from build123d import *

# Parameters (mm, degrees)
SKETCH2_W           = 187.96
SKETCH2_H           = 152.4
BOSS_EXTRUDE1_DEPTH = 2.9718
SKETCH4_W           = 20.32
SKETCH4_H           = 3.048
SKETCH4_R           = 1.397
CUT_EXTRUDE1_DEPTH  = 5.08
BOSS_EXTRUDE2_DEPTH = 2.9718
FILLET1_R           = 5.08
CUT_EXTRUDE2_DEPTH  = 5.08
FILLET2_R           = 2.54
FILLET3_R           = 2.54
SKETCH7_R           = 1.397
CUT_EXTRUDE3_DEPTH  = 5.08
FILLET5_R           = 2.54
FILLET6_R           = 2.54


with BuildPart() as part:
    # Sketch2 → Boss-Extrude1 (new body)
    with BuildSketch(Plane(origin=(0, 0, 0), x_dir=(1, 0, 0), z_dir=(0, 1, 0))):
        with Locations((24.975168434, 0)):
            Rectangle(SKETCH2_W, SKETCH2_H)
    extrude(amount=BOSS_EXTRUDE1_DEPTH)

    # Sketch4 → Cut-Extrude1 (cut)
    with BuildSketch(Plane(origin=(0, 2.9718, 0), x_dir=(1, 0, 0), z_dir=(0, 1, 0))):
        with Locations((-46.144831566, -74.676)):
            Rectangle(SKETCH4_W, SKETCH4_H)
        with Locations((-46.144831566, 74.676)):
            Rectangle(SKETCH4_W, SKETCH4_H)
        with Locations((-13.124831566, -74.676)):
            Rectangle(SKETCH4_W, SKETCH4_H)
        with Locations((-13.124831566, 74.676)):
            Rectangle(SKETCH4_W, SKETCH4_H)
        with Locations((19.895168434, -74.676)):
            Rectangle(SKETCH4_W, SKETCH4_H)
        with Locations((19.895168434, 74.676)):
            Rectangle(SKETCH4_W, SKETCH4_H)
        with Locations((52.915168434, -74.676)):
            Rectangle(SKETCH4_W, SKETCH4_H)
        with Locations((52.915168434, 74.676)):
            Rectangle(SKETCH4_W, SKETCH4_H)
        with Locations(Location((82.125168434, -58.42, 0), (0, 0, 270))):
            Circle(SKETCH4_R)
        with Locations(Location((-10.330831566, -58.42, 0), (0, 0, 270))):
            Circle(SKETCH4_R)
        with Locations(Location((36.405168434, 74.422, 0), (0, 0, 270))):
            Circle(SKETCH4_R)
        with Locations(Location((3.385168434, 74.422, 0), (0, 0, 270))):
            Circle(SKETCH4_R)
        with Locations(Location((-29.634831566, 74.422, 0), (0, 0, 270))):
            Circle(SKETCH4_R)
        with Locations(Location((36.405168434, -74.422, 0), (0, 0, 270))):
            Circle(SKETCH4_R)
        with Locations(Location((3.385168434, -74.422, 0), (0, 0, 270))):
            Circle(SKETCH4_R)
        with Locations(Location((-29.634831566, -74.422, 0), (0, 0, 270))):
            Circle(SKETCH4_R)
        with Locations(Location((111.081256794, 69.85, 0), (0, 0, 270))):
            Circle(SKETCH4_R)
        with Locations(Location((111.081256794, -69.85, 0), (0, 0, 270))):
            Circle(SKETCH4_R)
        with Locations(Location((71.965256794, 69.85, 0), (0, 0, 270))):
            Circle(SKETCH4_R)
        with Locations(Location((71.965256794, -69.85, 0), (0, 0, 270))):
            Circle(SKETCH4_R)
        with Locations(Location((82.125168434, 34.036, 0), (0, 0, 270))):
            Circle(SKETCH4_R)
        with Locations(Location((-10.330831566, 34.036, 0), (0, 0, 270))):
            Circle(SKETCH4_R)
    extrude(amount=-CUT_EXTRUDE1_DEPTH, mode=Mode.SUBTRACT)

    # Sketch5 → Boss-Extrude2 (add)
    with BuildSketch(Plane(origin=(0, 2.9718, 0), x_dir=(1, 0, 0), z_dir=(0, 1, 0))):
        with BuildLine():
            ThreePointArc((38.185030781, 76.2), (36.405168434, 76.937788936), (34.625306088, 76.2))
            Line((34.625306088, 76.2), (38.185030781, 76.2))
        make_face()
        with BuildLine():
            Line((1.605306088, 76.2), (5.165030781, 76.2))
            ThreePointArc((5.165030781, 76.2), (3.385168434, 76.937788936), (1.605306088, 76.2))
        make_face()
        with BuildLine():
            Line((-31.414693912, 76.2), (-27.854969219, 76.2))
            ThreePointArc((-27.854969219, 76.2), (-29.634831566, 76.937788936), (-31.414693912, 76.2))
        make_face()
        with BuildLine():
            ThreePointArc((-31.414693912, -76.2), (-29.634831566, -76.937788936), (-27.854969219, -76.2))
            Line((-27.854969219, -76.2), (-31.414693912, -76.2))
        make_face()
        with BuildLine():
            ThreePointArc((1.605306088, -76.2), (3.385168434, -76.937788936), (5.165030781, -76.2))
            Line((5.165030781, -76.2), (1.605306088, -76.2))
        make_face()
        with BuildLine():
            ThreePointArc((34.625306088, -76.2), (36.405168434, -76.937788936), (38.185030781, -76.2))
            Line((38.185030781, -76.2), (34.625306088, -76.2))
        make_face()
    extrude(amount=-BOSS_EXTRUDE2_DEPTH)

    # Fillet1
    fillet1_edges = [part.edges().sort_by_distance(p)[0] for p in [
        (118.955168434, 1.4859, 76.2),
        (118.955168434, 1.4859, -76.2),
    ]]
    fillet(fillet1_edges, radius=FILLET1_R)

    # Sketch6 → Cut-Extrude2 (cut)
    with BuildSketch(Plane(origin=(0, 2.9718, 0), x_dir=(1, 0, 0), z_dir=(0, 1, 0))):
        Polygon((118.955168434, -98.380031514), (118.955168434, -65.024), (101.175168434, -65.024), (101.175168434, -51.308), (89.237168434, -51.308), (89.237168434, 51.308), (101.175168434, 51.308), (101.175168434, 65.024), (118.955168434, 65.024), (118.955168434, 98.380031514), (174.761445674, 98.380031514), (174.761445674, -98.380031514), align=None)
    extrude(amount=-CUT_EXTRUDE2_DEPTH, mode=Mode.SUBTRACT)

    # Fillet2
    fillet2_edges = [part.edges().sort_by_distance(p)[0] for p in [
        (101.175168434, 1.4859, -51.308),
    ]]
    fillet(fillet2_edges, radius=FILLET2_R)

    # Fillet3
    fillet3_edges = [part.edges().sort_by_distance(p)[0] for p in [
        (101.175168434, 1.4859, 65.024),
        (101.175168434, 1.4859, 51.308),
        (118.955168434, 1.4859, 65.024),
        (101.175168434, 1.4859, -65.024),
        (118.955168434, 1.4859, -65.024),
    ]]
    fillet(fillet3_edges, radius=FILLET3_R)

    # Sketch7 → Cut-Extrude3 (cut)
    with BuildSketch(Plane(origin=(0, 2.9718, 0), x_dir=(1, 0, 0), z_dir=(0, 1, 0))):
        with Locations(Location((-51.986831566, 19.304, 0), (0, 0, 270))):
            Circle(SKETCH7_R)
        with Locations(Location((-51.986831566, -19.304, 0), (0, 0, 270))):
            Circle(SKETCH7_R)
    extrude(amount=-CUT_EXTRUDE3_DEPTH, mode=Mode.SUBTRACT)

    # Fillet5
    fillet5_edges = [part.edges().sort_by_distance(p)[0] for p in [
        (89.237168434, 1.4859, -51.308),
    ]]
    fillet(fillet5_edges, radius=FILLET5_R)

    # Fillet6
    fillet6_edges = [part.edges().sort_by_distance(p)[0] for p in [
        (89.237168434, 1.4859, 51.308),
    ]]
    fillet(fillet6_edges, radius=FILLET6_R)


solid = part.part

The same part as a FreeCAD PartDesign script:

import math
import FreeCAD as App
import Part
import Sketcher
from FreeCAD import Vector
Q = App.Units.Quantity


def edges_at(feature, points):
    """Names of the edges that pass closest to the given points."""
    edges = feature.Shape.Edges
    near = lambda p: min(range(len(edges)), key=lambda i: edges[i].distToShape(Part.Vertex(*p))[0])
    return sorted({f"Edge{near(p) + 1}" for p in points})

doc = App.newDocument("Part")
body = doc.addObject("PartDesign::Body", "Body")

# Sketch on XZ plane
sketch1 = body.newObject("Sketcher::SketchObject", "Sketch")
sketch1.AttachmentSupport = (doc.getObject("XZ_Plane"), [""])
sketch1.MapMode = "FlatFace"
sketch1.addGeometry(Part.LineSegment(Vector(-69, -76, 0), Vector(-69, 76, 0)), False)
sketch1.addGeometry(Part.LineSegment(Vector(-69, 76, 0), Vector(119, 76, 0)), False)
sketch1.addGeometry(Part.LineSegment(Vector(119, 76, 0), Vector(119, -76, 0)), False)
sketch1.addGeometry(Part.LineSegment(Vector(119, -76, 0), Vector(-69, -76, 0)), False)
sketch1.addConstraint(Sketcher.Constraint("Coincident", 0, 2, 1, 1))
sketch1.addConstraint(Sketcher.Constraint("Coincident", 1, 2, 2, 1))
sketch1.addConstraint(Sketcher.Constraint("Coincident", 2, 2, 3, 1))
sketch1.addConstraint(Sketcher.Constraint("Coincident", 3, 2, 0, 1))
sketch1.addConstraint(Sketcher.Constraint("Vertical", 0))
sketch1.addConstraint(Sketcher.Constraint("Horizontal", 1))
sketch1.addConstraint(Sketcher.Constraint("Vertical", 2))
sketch1.addConstraint(Sketcher.Constraint("Horizontal", 3))
sketch1.addConstraint(Sketcher.Constraint("DistanceY", 0, 1, 0, 2, Q("6 in")))
sketch1.addConstraint(Sketcher.Constraint("DistanceX", 1, 1, 1, 2, Q("7.4 in")))
sketch1.addConstraint(Sketcher.Constraint("DistanceY", -1, 1, 0, 2, Q("3 in")))
sketch1.addConstraint(Sketcher.Constraint("DistanceX", 0, 2, -1, 1, Q("69.004832 mm")))
pad1 = body.newObject("PartDesign::Pad", "Pad")
pad1.Profile = sketch1
pad1.Length = Q("0.117 in")
pad1.Reversed = True

# Sketch on XZ plane
sketch2 = body.newObject("Sketcher::SketchObject", "Sketch001")
sketch2.AttachmentSupport = (doc.getObject("XZ_Plane"), [""])
sketch2.MapMode = "FlatFace"
sketch2.AttachmentOffset = App.Placement(Vector(0, 0, -0.117 * 25.4), App.Rotation())
sketch2.addGeometry(Part.LineSegment(Vector(-56.3, 73.2, 0), Vector(-56.3, 76.2, 0)), False)
sketch2.addGeometry(Part.LineSegment(Vector(-56.3, 76.2, 0), Vector(-36, 76.2, 0)), False)
sketch2.addGeometry(Part.LineSegment(Vector(-36, 76.2, 0), Vector(-36, 73.2, 0)), False)
sketch2.addGeometry(Part.LineSegment(Vector(-36, 73.2, 0), Vector(-56.3, 73.2, 0)), False)
sketch2.addGeometry(Part.LineSegment(Vector(-56.3, -76.2, 0), Vector(-56.3, -73.2, 0)), False)
sketch2.addGeometry(Part.LineSegment(Vector(-56.3, -73.2, 0), Vector(-36, -73.2, 0)), False)
sketch2.addGeometry(Part.LineSegment(Vector(-36, -73.2, 0), Vector(-36, -76.2, 0)), False)
sketch2.addGeometry(Part.LineSegment(Vector(-36, -76.2, 0), Vector(-56.3, -76.2, 0)), False)
sketch2.addGeometry(Part.LineSegment(Vector(-23.3, 73.2, 0), Vector(-23.3, 76.2, 0)), False)
sketch2.addGeometry(Part.LineSegment(Vector(-23.3, 76.2, 0), Vector(-3, 76.2, 0)), False)
sketch2.addGeometry(Part.LineSegment(Vector(-3, 76.2, 0), Vector(-3, 73.2, 0)), False)
sketch2.addGeometry(Part.LineSegment(Vector(-3, 73.2, 0), Vector(-23.3, 73.2, 0)), False)
sketch2.addGeometry(Part.LineSegment(Vector(-23.3, -76.2, 0), Vector(-23.3, -73.2, 0)), False)
sketch2.addGeometry(Part.LineSegment(Vector(-23.3, -73.2, 0), Vector(-3, -73.2, 0)), False)
sketch2.addGeometry(Part.LineSegment(Vector(-3, -73.2, 0), Vector(-3, -76.2, 0)), False)
sketch2.addGeometry(Part.LineSegment(Vector(-3, -76.2, 0), Vector(-23.3, -76.2, 0)), False)
sketch2.addGeometry(Part.LineSegment(Vector(9.7, 73.2, 0), Vector(9.7, 76.2, 0)), False)
sketch2.addGeometry(Part.LineSegment(Vector(9.7, 76.2, 0), Vector(30.1, 76.2, 0)), False)
sketch2.addGeometry(Part.LineSegment(Vector(30.1, 76.2, 0), Vector(30.1, 73.2, 0)), False)
sketch2.addGeometry(Part.LineSegment(Vector(30.1, 73.2, 0), Vector(9.7, 73.2, 0)), False)
sketch2.addGeometry(Part.LineSegment(Vector(9.7, -76.2, 0), Vector(9.7, -73.2, 0)), False)
sketch2.addGeometry(Part.LineSegment(Vector(9.7, -73.2, 0), Vector(30.1, -73.2, 0)), False)
sketch2.addGeometry(Part.LineSegment(Vector(30.1, -73.2, 0), Vector(30.1, -76.2, 0)), False)
sketch2.addGeometry(Part.LineSegment(Vector(30.1, -76.2, 0), Vector(9.7, -76.2, 0)), False)
sketch2.addGeometry(Part.LineSegment(Vector(42.8, 73.2, 0), Vector(42.8, 76.2, 0)), False)
sketch2.addGeometry(Part.LineSegment(Vector(42.8, 76.2, 0), Vector(63.1, 76.2, 0)), False)
sketch2.addGeometry(Part.LineSegment(Vector(63.1, 76.2, 0), Vector(63.1, 73.2, 0)), False)
sketch2.addGeometry(Part.LineSegment(Vector(63.1, 73.2, 0), Vector(42.8, 73.2, 0)), False)
sketch2.addGeometry(Part.LineSegment(Vector(42.8, -76.2, 0), Vector(42.8, -73.2, 0)), False)
sketch2.addGeometry(Part.LineSegment(Vector(42.8, -73.2, 0), Vector(63.1, -73.2, 0)), False)
sketch2.addGeometry(Part.LineSegment(Vector(63.1, -73.2, 0), Vector(63.1, -76.2, 0)), False)
sketch2.addGeometry(Part.LineSegment(Vector(63.1, -76.2, 0), Vector(42.8, -76.2, 0)), False)
sketch2.addGeometry(Part.Circle(Vector(82.1, 58.4, 0), Vector(0, 0, 1), 1.4), False)
sketch2.addGeometry(Part.Circle(Vector(-10.3, 58.4, 0), Vector(0, 0, 1), 1.4), False)
sketch2.addGeometry(Part.Circle(Vector(36.4, -74.4, 0), Vector(0, 0, 1), 1.4), False)
sketch2.addGeometry(Part.Circle(Vector(3.4, -74.4, 0), Vector(0, 0, 1), 1.4), False)
sketch2.addGeometry(Part.Circle(Vector(-29.6, -74.4, 0), Vector(0, 0, 1), 1.4), False)
sketch2.addGeometry(Part.Circle(Vector(36.4, 74.4, 0), Vector(0, 0, 1), 1.4), False)
sketch2.addGeometry(Part.Circle(Vector(3.4, 74.4, 0), Vector(0, 0, 1), 1.4), False)
sketch2.addGeometry(Part.Circle(Vector(-29.6, 74.4, 0), Vector(0, 0, 1), 1.4), False)
sketch2.addGeometry(Part.Circle(Vector(111.1, -69.8, 0), Vector(0, 0, 1), 1.4), False)
sketch2.addGeometry(Part.Circle(Vector(111.1, 69.8, 0), Vector(0, 0, 1), 1.4), False)
sketch2.addGeometry(Part.Circle(Vector(72, -69.8, 0), Vector(0, 0, 1), 1.4), False)
sketch2.addGeometry(Part.Circle(Vector(72, 69.8, 0), Vector(0, 0, 1), 1.4), False)
sketch2.addGeometry(Part.Circle(Vector(82.1, -34, 0), Vector(0, 0, 1), 1.4), False)
sketch2.addGeometry(Part.Circle(Vector(-10.3, -34, 0), Vector(0, 0, 1), 1.4), False)
sketch2.addConstraint(Sketcher.Constraint("Coincident", 0, 2, 1, 1))
sketch2.addConstraint(Sketcher.Constraint("Coincident", 1, 2, 2, 1))
sketch2.addConstraint(Sketcher.Constraint("Coincident", 2, 2, 3, 1))
sketch2.addConstraint(Sketcher.Constraint("Coincident", 3, 2, 0, 1))
sketch2.addConstraint(Sketcher.Constraint("Coincident", 4, 2, 5, 1))
sketch2.addConstraint(Sketcher.Constraint("Coincident", 5, 2, 6, 1))
sketch2.addConstraint(Sketcher.Constraint("Coincident", 6, 2, 7, 1))
sketch2.addConstraint(Sketcher.Constraint("Coincident", 7, 2, 4, 1))
sketch2.addConstraint(Sketcher.Constraint("Coincident", 8, 2, 9, 1))
sketch2.addConstraint(Sketcher.Constraint("Coincident", 9, 2, 10, 1))
sketch2.addConstraint(Sketcher.Constraint("Coincident", 10, 2, 11, 1))
sketch2.addConstraint(Sketcher.Constraint("Coincident", 11, 2, 8, 1))
sketch2.addConstraint(Sketcher.Constraint("Coincident", 12, 2, 13, 1))
sketch2.addConstraint(Sketcher.Constraint("Coincident", 13, 2, 14, 1))
sketch2.addConstraint(Sketcher.Constraint("Coincident", 14, 2, 15, 1))
sketch2.addConstraint(Sketcher.Constraint("Coincident", 15, 2, 12, 1))
sketch2.addConstraint(Sketcher.Constraint("Coincident", 16, 2, 17, 1))
sketch2.addConstraint(Sketcher.Constraint("Coincident", 17, 2, 18, 1))
sketch2.addConstraint(Sketcher.Constraint("Coincident", 18, 2, 19, 1))
sketch2.addConstraint(Sketcher.Constraint("Coincident", 19, 2, 16, 1))
sketch2.addConstraint(Sketcher.Constraint("Coincident", 20, 2, 21, 1))
sketch2.addConstraint(Sketcher.Constraint("Coincident", 21, 2, 22, 1))
sketch2.addConstraint(Sketcher.Constraint("Coincident", 22, 2, 23, 1))
sketch2.addConstraint(Sketcher.Constraint("Coincident", 23, 2, 20, 1))
sketch2.addConstraint(Sketcher.Constraint("Coincident", 24, 2, 25, 1))
sketch2.addConstraint(Sketcher.Constraint("Coincident", 25, 2, 26, 1))
sketch2.addConstraint(Sketcher.Constraint("Coincident", 26, 2, 27, 1))
sketch2.addConstraint(Sketcher.Constraint("Coincident", 27, 2, 24, 1))
sketch2.addConstraint(Sketcher.Constraint("Coincident", 28, 2, 29, 1))
sketch2.addConstraint(Sketcher.Constraint("Coincident", 29, 2, 30, 1))
sketch2.addConstraint(Sketcher.Constraint("Coincident", 30, 2, 31, 1))
sketch2.addConstraint(Sketcher.Constraint("Coincident", 31, 2, 28, 1))
sketch2.addConstraint(Sketcher.Constraint("Vertical", 0))
sketch2.addConstraint(Sketcher.Constraint("Horizontal", 1))
sketch2.addConstraint(Sketcher.Constraint("Vertical", 2))
sketch2.addConstraint(Sketcher.Constraint("Horizontal", 3))
sketch2.addConstraint(Sketcher.Constraint("Vertical", 4))
sketch2.addConstraint(Sketcher.Constraint("Horizontal", 5))
sketch2.addConstraint(Sketcher.Constraint("Vertical", 6))
sketch2.addConstraint(Sketcher.Constraint("Horizontal", 7))
sketch2.addConstraint(Sketcher.Constraint("Vertical", 8))
sketch2.addConstraint(Sketcher.Constraint("Horizontal", 9))
sketch2.addConstraint(Sketcher.Constraint("Vertical", 10))
sketch2.addConstraint(Sketcher.Constraint("Horizontal", 11))
sketch2.addConstraint(Sketcher.Constraint("Vertical", 12))
sketch2.addConstraint(Sketcher.Constraint("Horizontal", 13))
sketch2.addConstraint(Sketcher.Constraint("Vertical", 14))
sketch2.addConstraint(Sketcher.Constraint("Horizontal", 15))
sketch2.addConstraint(Sketcher.Constraint("Vertical", 16))
sketch2.addConstraint(Sketcher.Constraint("Horizontal", 17))
sketch2.addConstraint(Sketcher.Constraint("Vertical", 18))
sketch2.addConstraint(Sketcher.Constraint("Horizontal", 19))
sketch2.addConstraint(Sketcher.Constraint("Vertical", 20))
sketch2.addConstraint(Sketcher.Constraint("Horizontal", 21))
sketch2.addConstraint(Sketcher.Constraint("Vertical", 22))
sketch2.addConstraint(Sketcher.Constraint("Horizontal", 23))
sketch2.addConstraint(Sketcher.Constraint("Vertical", 24))
sketch2.addConstraint(Sketcher.Constraint("Horizontal", 25))
sketch2.addConstraint(Sketcher.Constraint("Vertical", 26))
sketch2.addConstraint(Sketcher.Constraint("Horizontal", 27))
sketch2.addConstraint(Sketcher.Constraint("Vertical", 28))
sketch2.addConstraint(Sketcher.Constraint("Horizontal", 29))
sketch2.addConstraint(Sketcher.Constraint("Vertical", 30))
sketch2.addConstraint(Sketcher.Constraint("Horizontal", 31))
sketch2.addConstraint(Sketcher.Constraint("Equal", 32, 33))
sketch2.addConstraint(Sketcher.Constraint("Equal", 33, 34))
sketch2.addConstraint(Sketcher.Constraint("Equal", 34, 35))
sketch2.addConstraint(Sketcher.Constraint("Equal", 35, 36))
sketch2.addConstraint(Sketcher.Constraint("Equal", 36, 37))
sketch2.addConstraint(Sketcher.Constraint("Equal", 37, 38))
sketch2.addConstraint(Sketcher.Constraint("Equal", 38, 39))
sketch2.addConstraint(Sketcher.Constraint("Equal", 39, 40))
sketch2.addConstraint(Sketcher.Constraint("Equal", 40, 41))
sketch2.addConstraint(Sketcher.Constraint("Equal", 41, 42))
sketch2.addConstraint(Sketcher.Constraint("Equal", 42, 43))
sketch2.addConstraint(Sketcher.Constraint("Equal", 43, 44))
sketch2.addConstraint(Sketcher.Constraint("Equal", 44, 45))
sketch2.addConstraint(Sketcher.Constraint("Symmetric", 34, 3, 37, 3, -1))
sketch2.addConstraint(Sketcher.Constraint("Symmetric", 35, 3, 38, 3, -1))
sketch2.addConstraint(Sketcher.Constraint("Symmetric", 36, 3, 39, 3, -1))
sketch2.addConstraint(Sketcher.Constraint("Symmetric", 40, 3, 41, 3, -1))
sketch2.addConstraint(Sketcher.Constraint("Symmetric", 42, 3, 43, 3, -1))
sketch2.addConstraint(Sketcher.Constraint("Symmetric", 3, 2, 4, 2, -1))
sketch2.addConstraint(Sketcher.Constraint("Symmetric", 1, 2, 6, 2, -1))
sketch2.addConstraint(Sketcher.Constraint("Symmetric", 11, 2, 12, 2, -1))
sketch2.addConstraint(Sketcher.Constraint("Symmetric", 9, 2, 14, 2, -1))
sketch2.addConstraint(Sketcher.Constraint("Symmetric", 19, 2, 20, 2, -1))
sketch2.addConstraint(Sketcher.Constraint("Symmetric", 17, 2, 22, 2, -1))
sketch2.addConstraint(Sketcher.Constraint("Symmetric", 27, 2, 28, 2, -1))
sketch2.addConstraint(Sketcher.Constraint("Symmetric", 25, 2, 30, 2, -1))
sketch2.addConstraint(Sketcher.Constraint("Horizontal", 32, 3, 33, 3))
sketch2.addConstraint(Sketcher.Constraint("Horizontal", 34, 3, 35, 3))
sketch2.addConstraint(Sketcher.Constraint("Horizontal", 35, 3, 36, 3))
sketch2.addConstraint(Sketcher.Constraint("Horizontal", 40, 3, 42, 3))
sketch2.addConstraint(Sketcher.Constraint("Horizontal", 44, 3, 45, 3))
sketch2.addConstraint(Sketcher.Constraint("Horizontal", 1, 2, 8, 2))
sketch2.addConstraint(Sketcher.Constraint("Horizontal", 3, 2, 10, 2))
sketch2.addConstraint(Sketcher.Constraint("Horizontal", 9, 2, 16, 2))
sketch2.addConstraint(Sketcher.Constraint("Horizontal", 11, 2, 18, 2))
sketch2.addConstraint(Sketcher.Constraint("Horizontal", 17, 2, 24, 2))
sketch2.addConstraint(Sketcher.Constraint("Horizontal", 19, 2, 26, 2))
sketch2.addConstraint(Sketcher.Constraint("Vertical", 32, 3, 44, 3))
sketch2.addConstraint(Sketcher.Constraint("Vertical", 33, 3, 45, 3))
sketch2.addConstraint(Sketcher.Constraint("Equal", 7, 9))
sketch2.addConstraint(Sketcher.Constraint("Equal", 15, 17))
sketch2.addConstraint(Sketcher.Constraint("Equal", 23, 25))
sketch2.addConstraint(Sketcher.Constraint("Diameter", 32, Q("0.11 in")))
sketch2.addConstraint(Sketcher.Constraint("DistanceX", 1, 1, 1, 2, Q("0.8 in")))
sketch2.addConstraint(Sketcher.Constraint("DistanceY", -1, 1, 0, 2, Q("3 in")))
sketch2.addConstraint(Sketcher.Constraint("DistanceY", 0, 1, 0, 2, Q("0.12 in")))
sketch2.addConstraint(Sketcher.Constraint("DistanceY", -1, 1, 32, 3, Q("2.3 in")))
sketch2.addConstraint(Sketcher.Constraint("DistanceX", 34, 3, 32, 3, Q("1.8 in")))
sketch2.addConstraint(Sketcher.Constraint("DistanceX", 35, 3, 34, 3, Q("1.3 in")))
sketch2.addConstraint(Sketcher.Constraint("DistanceX", 36, 3, 35, 3, Q("1.3 in")))
sketch2.addConstraint(Sketcher.Constraint("DistanceY", 40, 3, 41, 3, Q("5.5 in")))
sketch2.addConstraint(Sketcher.Constraint("DistanceX", 1, 2, 8, 2, Q("0.5 in")))
sketch2.addConstraint(Sketcher.Constraint("DistanceX", 9, 2, 16, 2, Q("0.5 in")))
sketch2.addConstraint(Sketcher.Constraint("DistanceX", 17, 2, 24, 2, Q("0.5 in")))
sketch2.addConstraint(Sketcher.Constraint("DistanceY", 34, 3, -1, 1, Q("2.93 in")))
sketch2.addConstraint(Sketcher.Constraint("DistanceY", 44, 3, -1, 1, Q("1.34 in")))
sketch2.addConstraint(Sketcher.Constraint("DistanceX", 33, 3, 32, 3, Q("3.64 in")))
sketch2.addConstraint(Sketcher.Constraint("DistanceX", 42, 3, 40, 3, Q("1.54 in")))
sketch2.addConstraint(Sketcher.Constraint("DistanceX", 0, 2, 39, 3, Q("1.05 in")))
sketch2.addConstraint(Sketcher.Constraint("DistanceX", -1, 1, 32, 3, Q("82.125168 mm")))
sketch2.addConstraint(Sketcher.Constraint("DistanceX", 34, 3, 40, 3, Q("74.676088 mm")))
pocket1 = body.newObject("PartDesign::Pocket", "Pocket")
pocket1.Profile = sketch2
pocket1.Length = Q("0.2 in")
pocket1.Reversed = True

# Sketch on XZ plane
sketch3 = body.newObject("Sketcher::SketchObject", "Sketch002")
sketch3.AttachmentSupport = (doc.getObject("XZ_Plane"), [""])
sketch3.MapMode = "FlatFace"
sketch3.AttachmentOffset = App.Placement(Vector(0, 0, -0.117 * 25.4), App.Rotation())
sketch3.addGeometry(Part.ArcOfCircle(Part.Circle(Vector(36.4, -74.4, 0), Vector(0, 0, 1), 2.5), math.radians(-135), math.radians(-45)), False)
sketch3.addGeometry(Part.LineSegment(Vector(34.6, -76.2, 0), Vector(38.2, -76.2, 0)), False)
sketch3.addGeometry(Part.LineSegment(Vector(1.6, -76.2, 0), Vector(5.2, -76.2, 0)), False)
sketch3.addGeometry(Part.ArcOfCircle(Part.Circle(Vector(3.4, -74.4, 0), Vector(0, 0, 1), 2.5), math.radians(-135), math.radians(-45)), False)
sketch3.addGeometry(Part.LineSegment(Vector(-31.4, -76.2, 0), Vector(-27.9, -76.2, 0)), False)
sketch3.addGeometry(Part.ArcOfCircle(Part.Circle(Vector(-29.6, -74.4, 0), Vector(0, 0, 1), 2.5), math.radians(-135), math.radians(-45)), False)
sketch3.addGeometry(Part.ArcOfCircle(Part.Circle(Vector(-29.6, 74.4, 0), Vector(0, 0, 1), 2.5), math.radians(45), math.radians(135)), False)
sketch3.addGeometry(Part.LineSegment(Vector(-27.9, 76.2, 0), Vector(-31.4, 76.2, 0)), False)
sketch3.addGeometry(Part.ArcOfCircle(Part.Circle(Vector(3.4, 74.4, 0), Vector(0, 0, 1), 2.5), math.radians(45), math.radians(135)), False)
sketch3.addGeometry(Part.LineSegment(Vector(5.2, 76.2, 0), Vector(1.6, 76.2, 0)), False)
sketch3.addGeometry(Part.ArcOfCircle(Part.Circle(Vector(36.4, 74.4, 0), Vector(0, 0, 1), 2.5), math.radians(45), math.radians(135)), False)
sketch3.addGeometry(Part.LineSegment(Vector(38.2, 76.2, 0), Vector(34.6, 76.2, 0)), False)
sketch3.addConstraint(Sketcher.Constraint("Coincident", 0, 1, 1, 1))
sketch3.addConstraint(Sketcher.Constraint("Coincident", 1, 2, 0, 2))
sketch3.addConstraint(Sketcher.Constraint("Coincident", 2, 1, 3, 1))
sketch3.addConstraint(Sketcher.Constraint("Coincident", 3, 2, 2, 2))
sketch3.addConstraint(Sketcher.Constraint("Coincident", 4, 1, 5, 1))
sketch3.addConstraint(Sketcher.Constraint("Coincident", 5, 2, 4, 2))
sketch3.addConstraint(Sketcher.Constraint("Coincident", 6, 1, 7, 1))
sketch3.addConstraint(Sketcher.Constraint("Coincident", 7, 2, 6, 2))
sketch3.addConstraint(Sketcher.Constraint("Coincident", 8, 1, 9, 1))
sketch3.addConstraint(Sketcher.Constraint("Coincident", 9, 2, 8, 2))
sketch3.addConstraint(Sketcher.Constraint("Coincident", 10, 1, 11, 1))
sketch3.addConstraint(Sketcher.Constraint("Coincident", 11, 2, 10, 2))
sketch3.addConstraint(Sketcher.Constraint("Horizontal", 1))
sketch3.addConstraint(Sketcher.Constraint("Horizontal", 2))
sketch3.addConstraint(Sketcher.Constraint("Horizontal", 4))
sketch3.addConstraint(Sketcher.Constraint("Horizontal", 7))
sketch3.addConstraint(Sketcher.Constraint("Horizontal", 9))
sketch3.addConstraint(Sketcher.Constraint("Horizontal", 11))
sketch3.addConstraint(Sketcher.Constraint("Equal", 0, 3))
sketch3.addConstraint(Sketcher.Constraint("Equal", 3, 5))
sketch3.addConstraint(Sketcher.Constraint("Equal", 5, 6))
sketch3.addConstraint(Sketcher.Constraint("Equal", 6, 8))
sketch3.addConstraint(Sketcher.Constraint("Equal", 8, 10))
sketch3.addConstraint(Sketcher.Constraint("Symmetric", 5, 3, 6, 3, -1))
sketch3.addConstraint(Sketcher.Constraint("Symmetric", 3, 3, 8, 3, -1))
sketch3.addConstraint(Sketcher.Constraint("Symmetric", 0, 3, 10, 3, -1))
sketch3.addConstraint(Sketcher.Constraint("Horizontal", 0, 3, 3, 3))
sketch3.addConstraint(Sketcher.Constraint("Horizontal", 3, 3, 5, 3))
sketch3.addConstraint(Sketcher.Constraint("Horizontal", 1, 2, 2, 1))
sketch3.addConstraint(Sketcher.Constraint("Horizontal", 3, 2, 4, 1))
sketch3.addConstraint(Sketcher.Constraint("Horizontal", 7, 2, 8, 1))
sketch3.addConstraint(Sketcher.Constraint("Horizontal", 9, 2, 10, 1))
sketch3.addConstraint(Sketcher.Constraint("Vertical", 5, 2, 6, 1))
sketch3.addConstraint(Sketcher.Constraint("DistanceY", 0, 1, -1, 1, Q("3 in")))
sketch3.addConstraint(Sketcher.Constraint("DistanceX", 3, 3, 0, 3, Q("1.3 in")))
sketch3.addConstraint(Sketcher.Constraint("DistanceX", 5, 3, 3, 3, Q("1.3 in")))
sketch3.addConstraint(Sketcher.Constraint("DistanceY", 0, 3, -1, 1, Q("2.93 in")))
sketch3.addConstraint(Sketcher.Constraint("Radius", 0, Q("2.515789 mm")))
sketch3.addConstraint(Sketcher.Constraint("DistanceX", -1, 1, 0, 3, Q("36.405168 mm")))
pad2 = body.newObject("PartDesign::Pad", "Pad001")
pad2.Profile = sketch3
pad2.Length = Q("0.117 in")
doc.recompute()

fillet = body.newObject("PartDesign::Fillet", "Fillet")
fillet.Base = (pad2, edges_at(pad2, [(118.955, 1.486, 76.2), (118.955, 1.486, -76.2)]))
fillet.Radius = Q("0.2 in")

# Sketch on XZ plane
sketch4 = body.newObject("Sketcher::SketchObject", "Sketch003")
sketch4.AttachmentSupport = (doc.getObject("XZ_Plane"), [""])
sketch4.MapMode = "FlatFace"
sketch4.AttachmentOffset = App.Placement(Vector(0, 0, -0.117 * 25.4), App.Rotation())
sketch4.addGeometry(Part.LineSegment(Vector(119, 65, 0), Vector(119, 98, 0)), False)
sketch4.addGeometry(Part.LineSegment(Vector(119, 98, 0), Vector(175, 98, 0)), False)
sketch4.addGeometry(Part.LineSegment(Vector(175, 98, 0), Vector(175, -98, 0)), False)
sketch4.addGeometry(Part.LineSegment(Vector(175, -98, 0), Vector(119, -98, 0)), False)
sketch4.addGeometry(Part.LineSegment(Vector(119, -98, 0), Vector(119, -65, 0)), False)
sketch4.addGeometry(Part.LineSegment(Vector(119, -65, 0), Vector(101, -65, 0)), False)
sketch4.addGeometry(Part.LineSegment(Vector(101, -65, 0), Vector(101, -51, 0)), False)
sketch4.addGeometry(Part.LineSegment(Vector(101, -51, 0), Vector(89, -51, 0)), False)
sketch4.addGeometry(Part.LineSegment(Vector(89, -51, 0), Vector(89, 51, 0)), False)
sketch4.addGeometry(Part.LineSegment(Vector(89, 51, 0), Vector(101, 51, 0)), False)
sketch4.addGeometry(Part.LineSegment(Vector(101, 51, 0), Vector(101, 65, 0)), False)
sketch4.addGeometry(Part.LineSegment(Vector(101, 65, 0), Vector(119, 65, 0)), False)
sketch4.addConstraint(Sketcher.Constraint("Coincident", 0, 2, 1, 1))
sketch4.addConstraint(Sketcher.Constraint("Coincident", 1, 2, 2, 1))
sketch4.addConstraint(Sketcher.Constraint("Coincident", 2, 2, 3, 1))
sketch4.addConstraint(Sketcher.Constraint("Coincident", 3, 2, 4, 1))
sketch4.addConstraint(Sketcher.Constraint("Coincident", 4, 2, 5, 1))
sketch4.addConstraint(Sketcher.Constraint("Coincident", 5, 2, 6, 1))
sketch4.addConstraint(Sketcher.Constraint("Coincident", 6, 2, 7, 1))
sketch4.addConstraint(Sketcher.Constraint("Coincident", 7, 2, 8, 1))
sketch4.addConstraint(Sketcher.Constraint("Coincident", 8, 2, 9, 1))
sketch4.addConstraint(Sketcher.Constraint("Coincident", 9, 2, 10, 1))
sketch4.addConstraint(Sketcher.Constraint("Coincident", 10, 2, 11, 1))
sketch4.addConstraint(Sketcher.Constraint("Coincident", 11, 2, 0, 1))
sketch4.addConstraint(Sketcher.Constraint("Vertical", 0))
sketch4.addConstraint(Sketcher.Constraint("Horizontal", 1))
sketch4.addConstraint(Sketcher.Constraint("Vertical", 2))
sketch4.addConstraint(Sketcher.Constraint("Horizontal", 3))
sketch4.addConstraint(Sketcher.Constraint("Vertical", 4))
sketch4.addConstraint(Sketcher.Constraint("Horizontal", 5))
sketch4.addConstraint(Sketcher.Constraint("Vertical", 6))
sketch4.addConstraint(Sketcher.Constraint("Horizontal", 7))
sketch4.addConstraint(Sketcher.Constraint("Vertical", 8))
sketch4.addConstraint(Sketcher.Constraint("Horizontal", 9))
sketch4.addConstraint(Sketcher.Constraint("Vertical", 10))
sketch4.addConstraint(Sketcher.Constraint("Horizontal", 11))
sketch4.addConstraint(Sketcher.Constraint("Symmetric", 0, 2, 3, 2, -1))
sketch4.addConstraint(Sketcher.Constraint("Symmetric", 6, 2, 9, 2, -1))
sketch4.addConstraint(Sketcher.Constraint("Equal", 0, 4))
sketch4.addConstraint(Sketcher.Constraint("DistanceX", 5, 2, 5, 1, Q("0.7 in")))
sketch4.addConstraint(Sketcher.Constraint("DistanceX", 7, 2, 7, 1, Q("0.47 in")))
sketch4.addConstraint(Sketcher.Constraint("DistanceY", 6, 1, 6, 2, Q("0.54 in")))
sketch4.addConstraint(Sketcher.Constraint("DistanceY", 8, 1, 8, 2, Q("4.04 in")))
sketch4.addConstraint(Sketcher.Constraint("DistanceY", 0, 1, 0, 2, Q("33.356032 mm")))
sketch4.addConstraint(Sketcher.Constraint("DistanceX", 1, 1, 1, 2, Q("55.806277 mm")))
sketch4.addConstraint(Sketcher.Constraint("DistanceX", -1, 1, 0, 2, Q("118.955168 mm")))
pocket2 = body.newObject("PartDesign::Pocket", "Pocket001")
pocket2.Profile = sketch4
pocket2.Length = Q("0.2 in")
pocket2.Reversed = True
doc.recompute()

fillet2 = body.newObject("PartDesign::Fillet", "Fillet001")
fillet2.Base = (pocket2, edges_at(pocket2, [(101.175, 1.486, -51.308)]))
fillet2.Radius = Q("0.1 in")
doc.recompute()

fillet3 = body.newObject("PartDesign::Fillet", "Fillet002")
fillet3.Base = (fillet2, edges_at(fillet2, [
    (101.175, 1.486, 65.024),
    (101.175, 1.486, 51.308),
    (118.955, 1.486, 65.024),
    (101.175, 1.486, -65.024),
    (118.955, 1.486, -65.024),
]))
fillet3.Radius = Q("0.1 in")

# Sketch on XZ plane
sketch5 = body.newObject("Sketcher::SketchObject", "Sketch004")
sketch5.AttachmentSupport = (doc.getObject("XZ_Plane"), [""])
sketch5.MapMode = "FlatFace"
sketch5.AttachmentOffset = App.Placement(Vector(0, 0, -0.117 * 25.4), App.Rotation())
sketch5.addGeometry(Part.Circle(Vector(-52, -19.3, 0), Vector(0, 0, 1), 1.4), False)
sketch5.addGeometry(Part.Circle(Vector(-52, 19.3, 0), Vector(0, 0, 1), 1.4), False)
sketch5.addConstraint(Sketcher.Constraint("Equal", 0, 1))
sketch5.addConstraint(Sketcher.Constraint("Symmetric", 0, 3, 1, 3, -1))
sketch5.addConstraint(Sketcher.Constraint("Diameter", 0, Q("0.11 in")))
sketch5.addConstraint(Sketcher.Constraint("DistanceY", 0, 3, -1, 1, Q("0.76 in")))
sketch5.addConstraint(Sketcher.Constraint("DistanceX", 0, 3, -1, 1, Q("51.986832 mm")))
pocket3 = body.newObject("PartDesign::Pocket", "Pocket002")
pocket3.Profile = sketch5
pocket3.Length = Q("0.2 in")
pocket3.Reversed = True
doc.recompute()

fillet4 = body.newObject("PartDesign::Fillet", "Fillet003")
fillet4.Base = (pocket3, edges_at(pocket3, [(89.237, 1.486, -51.308)]))
fillet4.Radius = Q("0.1 in")
doc.recompute()

fillet5 = body.newObject("PartDesign::Fillet", "Fillet004")
fillet5.Base = (fillet4, edges_at(fillet4, [(89.237, 1.486, 51.308)]))
fillet5.Radius = Q("0.1 in")

doc.recompute()
